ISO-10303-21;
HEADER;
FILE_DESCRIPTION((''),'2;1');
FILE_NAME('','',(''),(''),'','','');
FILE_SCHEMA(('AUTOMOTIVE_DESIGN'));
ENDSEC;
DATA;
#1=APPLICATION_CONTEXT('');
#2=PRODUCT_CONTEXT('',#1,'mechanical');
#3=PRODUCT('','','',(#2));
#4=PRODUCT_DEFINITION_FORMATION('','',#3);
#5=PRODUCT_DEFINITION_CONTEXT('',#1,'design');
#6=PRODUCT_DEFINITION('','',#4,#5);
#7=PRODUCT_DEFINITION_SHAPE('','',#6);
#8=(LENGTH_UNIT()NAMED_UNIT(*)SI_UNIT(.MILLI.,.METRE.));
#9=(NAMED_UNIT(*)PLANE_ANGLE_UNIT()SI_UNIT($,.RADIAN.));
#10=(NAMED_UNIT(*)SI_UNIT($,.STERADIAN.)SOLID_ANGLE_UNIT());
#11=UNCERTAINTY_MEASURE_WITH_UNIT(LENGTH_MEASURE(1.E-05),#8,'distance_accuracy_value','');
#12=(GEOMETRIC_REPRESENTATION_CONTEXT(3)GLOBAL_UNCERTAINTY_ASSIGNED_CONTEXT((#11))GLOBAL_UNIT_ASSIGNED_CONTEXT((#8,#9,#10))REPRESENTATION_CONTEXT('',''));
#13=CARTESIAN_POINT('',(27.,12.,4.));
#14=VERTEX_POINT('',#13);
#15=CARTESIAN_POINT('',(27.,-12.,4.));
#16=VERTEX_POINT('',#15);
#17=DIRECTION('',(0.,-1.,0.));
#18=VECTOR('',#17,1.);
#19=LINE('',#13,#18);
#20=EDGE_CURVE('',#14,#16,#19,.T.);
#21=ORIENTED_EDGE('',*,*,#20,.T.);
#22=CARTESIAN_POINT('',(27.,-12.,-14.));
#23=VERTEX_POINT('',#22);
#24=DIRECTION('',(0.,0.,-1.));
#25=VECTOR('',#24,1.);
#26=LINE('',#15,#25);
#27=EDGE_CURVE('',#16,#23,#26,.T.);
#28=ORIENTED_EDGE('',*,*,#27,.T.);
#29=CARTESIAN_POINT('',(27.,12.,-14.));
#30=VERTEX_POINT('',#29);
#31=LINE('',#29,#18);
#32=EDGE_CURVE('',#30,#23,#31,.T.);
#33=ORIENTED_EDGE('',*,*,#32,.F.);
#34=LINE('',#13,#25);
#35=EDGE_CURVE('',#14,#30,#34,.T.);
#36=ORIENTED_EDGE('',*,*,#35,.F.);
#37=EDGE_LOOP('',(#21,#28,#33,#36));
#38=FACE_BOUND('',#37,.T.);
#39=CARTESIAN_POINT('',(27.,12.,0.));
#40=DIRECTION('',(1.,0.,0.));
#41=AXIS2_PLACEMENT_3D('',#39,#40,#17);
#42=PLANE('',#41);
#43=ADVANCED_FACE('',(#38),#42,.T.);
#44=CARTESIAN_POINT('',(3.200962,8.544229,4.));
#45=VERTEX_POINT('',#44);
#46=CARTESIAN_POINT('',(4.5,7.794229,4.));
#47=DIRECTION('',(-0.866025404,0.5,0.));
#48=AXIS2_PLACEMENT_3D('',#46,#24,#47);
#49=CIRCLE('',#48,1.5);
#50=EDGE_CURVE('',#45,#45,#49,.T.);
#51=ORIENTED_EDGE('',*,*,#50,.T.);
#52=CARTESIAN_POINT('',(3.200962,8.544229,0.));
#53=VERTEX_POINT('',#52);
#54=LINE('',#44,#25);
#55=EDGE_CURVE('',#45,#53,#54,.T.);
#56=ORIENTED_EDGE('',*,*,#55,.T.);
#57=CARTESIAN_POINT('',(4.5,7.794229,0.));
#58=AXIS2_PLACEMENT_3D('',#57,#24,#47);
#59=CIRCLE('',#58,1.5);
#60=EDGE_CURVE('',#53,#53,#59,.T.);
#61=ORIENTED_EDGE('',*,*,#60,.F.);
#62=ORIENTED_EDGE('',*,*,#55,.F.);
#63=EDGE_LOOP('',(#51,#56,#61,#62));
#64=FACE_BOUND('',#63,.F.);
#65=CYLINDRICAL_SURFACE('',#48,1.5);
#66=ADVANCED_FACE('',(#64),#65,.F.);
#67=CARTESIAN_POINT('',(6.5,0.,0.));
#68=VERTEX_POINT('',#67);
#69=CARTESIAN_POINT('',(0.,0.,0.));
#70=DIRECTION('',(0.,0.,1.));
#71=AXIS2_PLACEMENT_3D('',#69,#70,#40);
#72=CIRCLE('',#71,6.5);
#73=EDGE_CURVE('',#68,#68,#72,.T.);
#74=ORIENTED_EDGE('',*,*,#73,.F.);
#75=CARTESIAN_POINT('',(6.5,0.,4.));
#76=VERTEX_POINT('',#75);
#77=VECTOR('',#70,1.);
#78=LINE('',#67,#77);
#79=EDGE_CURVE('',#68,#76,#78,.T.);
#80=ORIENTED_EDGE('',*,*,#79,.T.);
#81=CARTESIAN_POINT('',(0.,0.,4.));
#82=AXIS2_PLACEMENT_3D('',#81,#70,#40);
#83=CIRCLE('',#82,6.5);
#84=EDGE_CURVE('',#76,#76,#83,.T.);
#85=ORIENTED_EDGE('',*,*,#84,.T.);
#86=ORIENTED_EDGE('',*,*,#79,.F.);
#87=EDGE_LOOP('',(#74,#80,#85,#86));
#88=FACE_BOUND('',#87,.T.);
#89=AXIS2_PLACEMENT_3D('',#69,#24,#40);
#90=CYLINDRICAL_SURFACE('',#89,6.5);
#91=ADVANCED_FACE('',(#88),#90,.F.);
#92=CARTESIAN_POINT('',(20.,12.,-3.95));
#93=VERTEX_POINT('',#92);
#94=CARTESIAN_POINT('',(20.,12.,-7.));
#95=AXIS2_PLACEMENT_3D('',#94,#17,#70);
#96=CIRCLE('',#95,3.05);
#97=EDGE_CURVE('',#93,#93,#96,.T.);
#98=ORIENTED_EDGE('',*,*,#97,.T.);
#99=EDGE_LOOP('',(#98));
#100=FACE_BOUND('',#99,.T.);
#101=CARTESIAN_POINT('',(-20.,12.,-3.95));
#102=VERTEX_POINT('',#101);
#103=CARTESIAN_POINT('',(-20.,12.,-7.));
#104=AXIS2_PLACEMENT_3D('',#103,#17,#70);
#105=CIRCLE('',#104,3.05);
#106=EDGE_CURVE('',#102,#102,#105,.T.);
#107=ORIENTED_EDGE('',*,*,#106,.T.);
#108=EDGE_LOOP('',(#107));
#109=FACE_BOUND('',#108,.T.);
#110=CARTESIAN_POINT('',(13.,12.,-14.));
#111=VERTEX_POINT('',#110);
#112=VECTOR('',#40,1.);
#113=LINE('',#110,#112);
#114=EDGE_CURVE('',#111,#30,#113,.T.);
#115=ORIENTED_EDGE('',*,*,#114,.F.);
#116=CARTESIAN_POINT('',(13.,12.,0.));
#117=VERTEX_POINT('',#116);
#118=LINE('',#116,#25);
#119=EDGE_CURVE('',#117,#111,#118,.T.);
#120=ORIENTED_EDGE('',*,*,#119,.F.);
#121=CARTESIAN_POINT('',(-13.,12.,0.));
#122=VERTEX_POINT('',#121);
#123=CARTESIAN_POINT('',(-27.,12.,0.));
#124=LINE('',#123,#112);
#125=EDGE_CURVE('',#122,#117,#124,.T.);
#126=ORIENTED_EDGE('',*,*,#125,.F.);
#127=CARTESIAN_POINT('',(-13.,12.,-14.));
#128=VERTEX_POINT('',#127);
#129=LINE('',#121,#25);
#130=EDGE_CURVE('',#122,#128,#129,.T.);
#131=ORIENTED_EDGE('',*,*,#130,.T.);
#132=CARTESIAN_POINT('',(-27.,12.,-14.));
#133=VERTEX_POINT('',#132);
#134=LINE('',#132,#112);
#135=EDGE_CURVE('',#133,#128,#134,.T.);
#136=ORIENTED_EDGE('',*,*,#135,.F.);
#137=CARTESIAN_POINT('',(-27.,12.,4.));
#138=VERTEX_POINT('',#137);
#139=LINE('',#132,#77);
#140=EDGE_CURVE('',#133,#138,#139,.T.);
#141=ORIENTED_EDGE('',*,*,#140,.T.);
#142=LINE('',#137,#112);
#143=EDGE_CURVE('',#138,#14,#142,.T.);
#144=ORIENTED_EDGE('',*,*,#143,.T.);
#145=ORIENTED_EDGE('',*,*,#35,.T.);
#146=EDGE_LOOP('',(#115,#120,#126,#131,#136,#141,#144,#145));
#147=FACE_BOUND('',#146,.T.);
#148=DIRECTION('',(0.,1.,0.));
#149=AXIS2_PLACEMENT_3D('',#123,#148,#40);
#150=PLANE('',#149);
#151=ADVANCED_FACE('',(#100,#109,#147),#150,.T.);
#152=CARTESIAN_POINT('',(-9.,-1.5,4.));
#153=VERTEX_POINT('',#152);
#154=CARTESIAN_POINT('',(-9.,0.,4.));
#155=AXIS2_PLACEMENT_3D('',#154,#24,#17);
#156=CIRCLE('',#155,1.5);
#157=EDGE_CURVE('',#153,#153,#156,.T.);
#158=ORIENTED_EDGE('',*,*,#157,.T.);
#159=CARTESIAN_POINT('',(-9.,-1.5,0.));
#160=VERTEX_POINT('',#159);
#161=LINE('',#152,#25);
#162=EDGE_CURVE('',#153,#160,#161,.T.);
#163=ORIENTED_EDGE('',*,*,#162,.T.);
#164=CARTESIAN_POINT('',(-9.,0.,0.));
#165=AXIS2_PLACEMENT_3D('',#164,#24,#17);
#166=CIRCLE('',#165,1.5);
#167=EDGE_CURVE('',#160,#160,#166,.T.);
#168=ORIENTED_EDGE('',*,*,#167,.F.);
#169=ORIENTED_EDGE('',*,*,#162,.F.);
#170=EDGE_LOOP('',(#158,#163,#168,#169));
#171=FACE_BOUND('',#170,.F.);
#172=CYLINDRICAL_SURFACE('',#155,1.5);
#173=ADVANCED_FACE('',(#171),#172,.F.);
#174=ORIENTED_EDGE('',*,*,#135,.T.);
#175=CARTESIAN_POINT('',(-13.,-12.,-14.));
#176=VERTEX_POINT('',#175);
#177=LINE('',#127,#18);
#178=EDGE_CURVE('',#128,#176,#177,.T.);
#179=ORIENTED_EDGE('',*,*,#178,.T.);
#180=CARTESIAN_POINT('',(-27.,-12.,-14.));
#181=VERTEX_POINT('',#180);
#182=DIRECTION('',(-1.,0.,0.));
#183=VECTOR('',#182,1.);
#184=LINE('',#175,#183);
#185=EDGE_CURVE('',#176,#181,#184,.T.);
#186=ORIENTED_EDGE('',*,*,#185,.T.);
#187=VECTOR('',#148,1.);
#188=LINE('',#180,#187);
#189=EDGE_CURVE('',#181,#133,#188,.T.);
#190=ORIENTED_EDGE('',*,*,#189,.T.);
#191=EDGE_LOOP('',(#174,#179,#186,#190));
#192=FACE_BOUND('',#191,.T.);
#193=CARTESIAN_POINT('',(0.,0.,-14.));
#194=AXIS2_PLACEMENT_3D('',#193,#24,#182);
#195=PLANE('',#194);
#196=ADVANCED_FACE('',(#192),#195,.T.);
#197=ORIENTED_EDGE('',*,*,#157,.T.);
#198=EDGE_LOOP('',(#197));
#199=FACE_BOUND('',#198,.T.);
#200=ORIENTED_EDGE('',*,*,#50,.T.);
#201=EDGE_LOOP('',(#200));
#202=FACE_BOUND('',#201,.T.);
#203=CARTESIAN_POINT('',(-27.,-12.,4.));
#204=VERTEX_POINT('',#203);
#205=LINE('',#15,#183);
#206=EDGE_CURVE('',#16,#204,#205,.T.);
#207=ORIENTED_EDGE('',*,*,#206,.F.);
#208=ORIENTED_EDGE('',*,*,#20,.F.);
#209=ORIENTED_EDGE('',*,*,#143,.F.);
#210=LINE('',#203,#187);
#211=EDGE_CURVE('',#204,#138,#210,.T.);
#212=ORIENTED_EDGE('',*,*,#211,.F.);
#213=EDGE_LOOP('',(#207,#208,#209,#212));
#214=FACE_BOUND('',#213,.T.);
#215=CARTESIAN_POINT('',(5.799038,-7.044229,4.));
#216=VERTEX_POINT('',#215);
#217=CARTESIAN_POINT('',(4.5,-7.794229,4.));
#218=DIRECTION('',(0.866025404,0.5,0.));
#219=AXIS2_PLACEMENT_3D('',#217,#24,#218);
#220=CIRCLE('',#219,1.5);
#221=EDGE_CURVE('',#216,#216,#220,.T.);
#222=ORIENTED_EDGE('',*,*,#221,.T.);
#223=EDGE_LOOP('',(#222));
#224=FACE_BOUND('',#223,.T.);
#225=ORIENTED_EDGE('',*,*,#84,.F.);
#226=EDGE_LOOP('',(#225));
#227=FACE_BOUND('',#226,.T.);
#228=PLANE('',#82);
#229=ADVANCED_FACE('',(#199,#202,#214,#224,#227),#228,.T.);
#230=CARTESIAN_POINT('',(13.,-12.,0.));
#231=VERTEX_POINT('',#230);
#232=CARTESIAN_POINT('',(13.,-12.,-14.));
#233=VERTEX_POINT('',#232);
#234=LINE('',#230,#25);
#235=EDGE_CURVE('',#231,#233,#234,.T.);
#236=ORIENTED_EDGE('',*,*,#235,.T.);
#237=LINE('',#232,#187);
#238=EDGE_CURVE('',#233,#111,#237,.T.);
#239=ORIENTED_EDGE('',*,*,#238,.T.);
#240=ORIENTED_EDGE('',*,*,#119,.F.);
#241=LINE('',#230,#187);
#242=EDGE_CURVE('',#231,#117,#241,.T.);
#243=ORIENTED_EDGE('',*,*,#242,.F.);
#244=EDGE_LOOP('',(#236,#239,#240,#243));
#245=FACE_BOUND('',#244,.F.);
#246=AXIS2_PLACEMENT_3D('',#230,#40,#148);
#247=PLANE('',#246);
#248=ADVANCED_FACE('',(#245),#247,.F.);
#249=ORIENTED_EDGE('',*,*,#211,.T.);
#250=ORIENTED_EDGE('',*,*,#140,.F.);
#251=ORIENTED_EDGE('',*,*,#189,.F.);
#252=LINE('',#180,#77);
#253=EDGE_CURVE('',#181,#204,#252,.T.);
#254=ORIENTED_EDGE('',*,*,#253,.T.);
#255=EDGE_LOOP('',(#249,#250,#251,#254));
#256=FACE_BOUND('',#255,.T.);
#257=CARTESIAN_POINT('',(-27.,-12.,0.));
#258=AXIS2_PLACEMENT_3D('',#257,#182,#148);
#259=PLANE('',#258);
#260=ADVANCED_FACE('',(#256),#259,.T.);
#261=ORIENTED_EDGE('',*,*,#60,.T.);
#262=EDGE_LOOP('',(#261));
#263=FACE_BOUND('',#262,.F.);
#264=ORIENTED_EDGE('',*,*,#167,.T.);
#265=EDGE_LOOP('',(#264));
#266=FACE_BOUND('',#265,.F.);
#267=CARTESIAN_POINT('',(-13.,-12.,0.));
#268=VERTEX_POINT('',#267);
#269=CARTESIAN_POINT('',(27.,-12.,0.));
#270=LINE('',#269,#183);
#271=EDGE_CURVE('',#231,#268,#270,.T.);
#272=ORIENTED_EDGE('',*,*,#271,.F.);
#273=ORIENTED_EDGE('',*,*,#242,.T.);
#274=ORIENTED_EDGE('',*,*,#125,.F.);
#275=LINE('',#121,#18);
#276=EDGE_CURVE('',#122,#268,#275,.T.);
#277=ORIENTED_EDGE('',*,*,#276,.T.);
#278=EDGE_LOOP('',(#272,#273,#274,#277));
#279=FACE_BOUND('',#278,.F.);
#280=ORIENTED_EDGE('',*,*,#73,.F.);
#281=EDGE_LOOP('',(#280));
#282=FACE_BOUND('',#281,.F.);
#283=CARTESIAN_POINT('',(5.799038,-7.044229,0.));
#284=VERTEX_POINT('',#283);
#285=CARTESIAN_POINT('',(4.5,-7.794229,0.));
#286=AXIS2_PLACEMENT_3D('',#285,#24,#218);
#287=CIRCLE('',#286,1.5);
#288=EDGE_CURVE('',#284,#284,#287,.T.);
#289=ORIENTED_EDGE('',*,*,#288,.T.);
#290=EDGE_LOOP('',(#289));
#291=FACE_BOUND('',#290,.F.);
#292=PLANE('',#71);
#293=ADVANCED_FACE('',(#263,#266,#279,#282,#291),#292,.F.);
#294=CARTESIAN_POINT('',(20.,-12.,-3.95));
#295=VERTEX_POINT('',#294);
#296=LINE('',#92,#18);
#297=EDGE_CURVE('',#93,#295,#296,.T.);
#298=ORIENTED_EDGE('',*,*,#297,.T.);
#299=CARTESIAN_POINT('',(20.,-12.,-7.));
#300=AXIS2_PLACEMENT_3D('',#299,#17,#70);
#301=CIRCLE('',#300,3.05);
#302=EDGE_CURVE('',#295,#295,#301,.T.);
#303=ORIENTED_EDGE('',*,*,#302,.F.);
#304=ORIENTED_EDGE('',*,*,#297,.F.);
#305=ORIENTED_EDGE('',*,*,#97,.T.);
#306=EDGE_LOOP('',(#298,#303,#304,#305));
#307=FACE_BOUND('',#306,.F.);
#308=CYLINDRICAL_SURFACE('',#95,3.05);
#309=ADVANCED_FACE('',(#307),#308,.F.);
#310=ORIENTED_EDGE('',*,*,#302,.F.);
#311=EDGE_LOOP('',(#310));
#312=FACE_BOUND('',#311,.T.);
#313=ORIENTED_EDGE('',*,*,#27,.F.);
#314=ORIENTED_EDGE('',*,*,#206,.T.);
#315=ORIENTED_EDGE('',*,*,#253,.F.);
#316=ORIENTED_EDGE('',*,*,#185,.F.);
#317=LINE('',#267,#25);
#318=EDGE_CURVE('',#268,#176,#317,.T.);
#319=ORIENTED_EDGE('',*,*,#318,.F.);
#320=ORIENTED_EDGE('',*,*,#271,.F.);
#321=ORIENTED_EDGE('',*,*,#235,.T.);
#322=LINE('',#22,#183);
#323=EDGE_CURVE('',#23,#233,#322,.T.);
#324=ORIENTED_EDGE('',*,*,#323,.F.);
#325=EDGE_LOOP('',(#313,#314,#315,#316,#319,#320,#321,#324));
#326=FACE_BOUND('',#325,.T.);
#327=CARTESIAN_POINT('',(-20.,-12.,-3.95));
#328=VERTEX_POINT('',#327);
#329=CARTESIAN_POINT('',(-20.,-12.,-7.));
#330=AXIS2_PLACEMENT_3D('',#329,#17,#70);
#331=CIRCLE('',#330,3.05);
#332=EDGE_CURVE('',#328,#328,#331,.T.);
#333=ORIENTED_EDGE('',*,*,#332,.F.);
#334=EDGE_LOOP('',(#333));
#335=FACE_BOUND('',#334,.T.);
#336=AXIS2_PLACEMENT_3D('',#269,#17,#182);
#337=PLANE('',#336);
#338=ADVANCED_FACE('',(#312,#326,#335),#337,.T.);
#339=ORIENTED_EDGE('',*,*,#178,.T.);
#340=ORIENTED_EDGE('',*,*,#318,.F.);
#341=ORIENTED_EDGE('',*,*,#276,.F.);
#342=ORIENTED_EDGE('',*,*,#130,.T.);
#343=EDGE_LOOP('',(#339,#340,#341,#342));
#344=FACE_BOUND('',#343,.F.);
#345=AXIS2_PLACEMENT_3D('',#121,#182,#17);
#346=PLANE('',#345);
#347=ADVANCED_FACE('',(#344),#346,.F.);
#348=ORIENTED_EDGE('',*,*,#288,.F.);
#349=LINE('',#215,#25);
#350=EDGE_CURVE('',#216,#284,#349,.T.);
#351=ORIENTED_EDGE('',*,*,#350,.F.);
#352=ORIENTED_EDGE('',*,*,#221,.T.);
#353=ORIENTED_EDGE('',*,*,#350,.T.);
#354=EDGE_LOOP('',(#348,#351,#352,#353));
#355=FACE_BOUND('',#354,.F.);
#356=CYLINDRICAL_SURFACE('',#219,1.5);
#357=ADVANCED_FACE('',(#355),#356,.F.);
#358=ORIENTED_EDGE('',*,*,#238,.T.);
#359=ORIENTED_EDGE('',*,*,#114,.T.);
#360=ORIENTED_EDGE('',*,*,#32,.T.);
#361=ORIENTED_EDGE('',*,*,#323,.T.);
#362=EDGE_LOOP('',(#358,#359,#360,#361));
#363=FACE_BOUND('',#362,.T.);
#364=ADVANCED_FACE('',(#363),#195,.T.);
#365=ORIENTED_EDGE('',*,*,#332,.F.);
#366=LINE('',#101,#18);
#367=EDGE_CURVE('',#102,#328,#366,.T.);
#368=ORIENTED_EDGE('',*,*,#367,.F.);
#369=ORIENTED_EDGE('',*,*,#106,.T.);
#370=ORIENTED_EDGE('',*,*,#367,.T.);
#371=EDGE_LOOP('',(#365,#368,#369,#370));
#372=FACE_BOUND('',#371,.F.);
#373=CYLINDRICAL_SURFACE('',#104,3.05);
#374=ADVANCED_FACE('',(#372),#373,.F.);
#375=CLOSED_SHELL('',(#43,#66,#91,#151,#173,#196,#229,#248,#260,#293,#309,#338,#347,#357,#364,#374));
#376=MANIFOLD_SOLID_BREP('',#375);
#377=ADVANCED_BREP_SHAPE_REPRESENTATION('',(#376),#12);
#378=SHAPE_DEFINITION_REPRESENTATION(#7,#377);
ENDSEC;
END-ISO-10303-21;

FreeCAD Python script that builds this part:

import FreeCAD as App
import Part
import Sketcher

V = App.Vector

doc = App.newDocument("Part")
body = doc.addObject("PartDesign::Body", "Body")

# Sketch on XY plane
sketch1 = body.newObject("Sketcher::SketchObject", "Sketch")
sketch1.AttachmentSupport = (doc.getObject("XY_Plane"), [""])
sketch1.MapMode = "FlatFace"
sketch1.addGeometry([
    Part.LineSegment(V(27, 12, 0), V(-27, 12, 0)),  # 0
    Part.LineSegment(V(-27, 12, 0), V(-27, -12, 0)),  # 1
    Part.LineSegment(V(-27, -12, 0), V(27, -12, 0)),  # 2
    Part.LineSegment(V(27, -12, 0), V(27, 12, 0)),  # 3
    Part.Circle(V(0, 0, 0), V(0, 0, 1), 6),  # 4
], False)
sketch1.addConstraint([
    Sketcher.Constraint("Coincident", 0, 2, 1, 1),
    Sketcher.Constraint("Coincident", 1, 2, 2, 1),
    Sketcher.Constraint("Coincident", 2, 2, 3, 1),
    Sketcher.Constraint("Coincident", 3, 2, 0, 1),
    Sketcher.Constraint("Horizontal", 0),
    Sketcher.Constraint("Vertical", 1),
    Sketcher.Constraint("Horizontal", 2),
    Sketcher.Constraint("Vertical", 3),
    Sketcher.Constraint("Coincident", 4, 3, -1, 1),
    Sketcher.Constraint("Symmetric", 0, 2, 2, 2, -1, 1),
    Sketcher.Constraint("Diameter", 4, 13.0),
    Sketcher.Constraint("DistanceX", 0, 2, 0, 1, 54.0),
    Sketcher.Constraint("DistanceY", 1, 2, 1, 1, 24.0),
])
pad1 = body.newObject("PartDesign::Pad", "Pad")
pad1.Profile = sketch1
pad1.Length = 4

# Sketch on XY plane
sketch2 = body.newObject("Sketcher::SketchObject", "Sketch001")
sketch2.AttachmentSupport = (doc.getObject("XY_Plane"), [""])
sketch2.MapMode = "FlatFace"
sketch2.addGeometry([
    Part.LineSegment(V(27, 12, 0), V(27, -12, 0)),  # 0
    Part.LineSegment(V(27, -12, 0), V(13, -12, 0)),  # 1
    Part.LineSegment(V(13, -12, 0), V(13, 12, 0)),  # 2
    Part.LineSegment(V(13, 12, 0), V(27, 12, 0)),  # 3
    Part.LineSegment(V(-13, 12, 0), V(-13, -12, 0)),  # 4
    Part.LineSegment(V(-13, -12, 0), V(-27, -12, 0)),  # 5
    Part.LineSegment(V(-27, -12, 0), V(-27, 12, 0)),  # 6
    Part.LineSegment(V(-27, 12, 0), V(-13, 12, 0)),  # 7
], False)
sketch2.addConstraint([
    Sketcher.Constraint("Coincident", 0, 2, 1, 1),
    Sketcher.Constraint("Coincident", 1, 2, 2, 1),
    Sketcher.Constraint("Coincident", 2, 2, 3, 1),
    Sketcher.Constraint("Coincident", 3, 2, 0, 1),
    Sketcher.Constraint("Coincident", 4, 2, 5, 1),
    Sketcher.Constraint("Coincident", 5, 2, 6, 1),
    Sketcher.Constraint("Coincident", 6, 2, 7, 1),
    Sketcher.Constraint("Coincident", 7, 2, 4, 1),
    Sketcher.Constraint("Vertical", 0),
    Sketcher.Constraint("Horizontal", 1),
    Sketcher.Constraint("Vertical", 2),
    Sketcher.Constraint("Horizontal", 3),
    Sketcher.Constraint("Vertical", 4),
    Sketcher.Constraint("Horizontal", 5),
    Sketcher.Constraint("Vertical", 6),
    Sketcher.Constraint("Horizontal", 7),
    Sketcher.Constraint("Symmetric", 2, 2, 4, 2, -1, 1),
    Sketcher.Constraint("Symmetric", 0, 2, 6, 2, -1, 1),
    Sketcher.Constraint("Horizontal", 1, 2, 4, 2),
    Sketcher.Constraint("DistanceX", 1, 2, 1, 1, 14.0),
    Sketcher.Constraint("DistanceY", 0, 2, 0, 1, 24.0),
    Sketcher.Constraint("DistanceX", -1, 1, 0, 2, 27.0),
])
pad2 = body.newObject("PartDesign::Pad", "Pad001")
pad2.Profile = sketch2
pad2.Length = 14
pad2.Reversed = True

# Sketch on XZ plane
sketch3 = body.newObject("Sketcher::SketchObject", "Sketch002")
sketch3.AttachmentSupport = (doc.getObject("XZ_Plane"), [""])
sketch3.MapMode = "FlatFace"
sketch3.AttachmentOffset = App.Placement(V(0, 0, -12), App.Rotation())
sketch3.addGeometry(Part.Circle(V(20, -7, 0), V(0, 0, 1), 3), False)
sketch3.addConstraint([
    Sketcher.Constraint("Diameter", 0, 6.1),
    Sketcher.Constraint("DistanceX", -1, 1, 0, 3, 20.0),
    Sketcher.Constraint("DistanceY", 0, 3, -1, 1, 7.0),
])
doc.recompute()
hole = body.newObject("PartDesign::Hole", "Hole")
hole.Profile = sketch3
hole.ThreadType = "None"
hole.Diameter = 6.1
hole.DepthType = "Dimension"
hole.Depth = 24
hole.DrillPoint = "Flat"
hole.Reversed = True

# Sketch on XZ plane
sketch4 = body.newObject("Sketcher::SketchObject", "Sketch003")
sketch4.AttachmentSupport = (doc.getObject("XZ_Plane"), [""])
sketch4.MapMode = "FlatFace"
sketch4.AttachmentOffset = App.Placement(V(0, 0, -12), App.Rotation())
sketch4.addGeometry(Part.Circle(V(-20, -7, 0), V(0, 0, 1), 3), False)
sketch4.addConstraint([
    Sketcher.Constraint("Diameter", 0, 6.1),
    Sketcher.Constraint("DistanceX", 0, 3, -1, 1, 20.0),
    Sketcher.Constraint("DistanceY", 0, 3, -1, 1, 7.0),
])
doc.recompute()
hole2 = body.newObject("PartDesign::Hole", "Hole001")
hole2.Profile = sketch4
hole2.ThreadType = "None"
hole2.Diameter = 6.1
hole2.DepthType = "Dimension"
hole2.Depth = 724
hole2.DrillPoint = "Flat"
hole2.Reversed = True

# Sketch on XY plane
sketch5 = body.newObject("Sketcher::SketchObject", "Sketch004")
sketch5.AttachmentSupport = (doc.getObject("XY_Plane"), [""])
sketch5.MapMode = "FlatFace"
sketch5.AttachmentOffset = App.Placement(V(0, 0, 4), App.Rotation())
sketch5.addGeometry(Part.Circle(V(-9, 0, 0), V(0, 0, 1), 1.5), False)
sketch5.addConstraint([
    Sketcher.Constraint("PointOnObject", 0, 3, -1),
    Sketcher.Constraint("Diameter", 0, 3.0),
    Sketcher.Constraint("DistanceX", 0, 3, -1, 1, 9.0),
])
doc.recompute()
hole3 = body.newObject("PartDesign::Hole", "Hole002")
hole3.Profile = sketch5
hole3.ThreadType = "None"
hole3.Diameter = 3
hole3.DepthType = "Dimension"
hole3.Depth = 8
hole3.DrillPoint = "Angled"
hole3.DrillPointAngle = 118
doc.recompute()

polarpattern = body.newObject("PartDesign::PolarPattern", "PolarPattern")
polarpattern.Originals = [hole3]
polarpattern.Axis = (doc.getObject("Z_Axis"), [""])
polarpattern.Angle = 360
polarpattern.Occurrences = 3
body.Tip = polarpattern

doc.recompute()
